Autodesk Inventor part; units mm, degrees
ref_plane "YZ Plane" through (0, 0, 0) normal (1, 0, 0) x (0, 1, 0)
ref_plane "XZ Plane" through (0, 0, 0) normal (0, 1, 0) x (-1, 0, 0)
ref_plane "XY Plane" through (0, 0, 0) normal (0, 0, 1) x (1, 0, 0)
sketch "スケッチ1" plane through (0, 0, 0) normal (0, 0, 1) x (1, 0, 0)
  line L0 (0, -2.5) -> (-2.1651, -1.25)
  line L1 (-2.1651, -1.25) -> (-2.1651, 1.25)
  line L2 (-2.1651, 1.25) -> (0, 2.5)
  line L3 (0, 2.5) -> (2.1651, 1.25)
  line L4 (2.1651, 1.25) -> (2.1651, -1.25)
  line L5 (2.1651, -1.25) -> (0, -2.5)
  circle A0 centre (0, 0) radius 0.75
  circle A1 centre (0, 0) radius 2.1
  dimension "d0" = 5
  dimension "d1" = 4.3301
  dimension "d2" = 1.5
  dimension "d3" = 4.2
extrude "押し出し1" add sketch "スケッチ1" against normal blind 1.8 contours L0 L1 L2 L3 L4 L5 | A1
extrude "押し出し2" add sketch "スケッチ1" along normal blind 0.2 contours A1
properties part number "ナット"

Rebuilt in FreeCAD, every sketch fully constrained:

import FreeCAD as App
import Part
import Sketcher
from FreeCAD import Vector
Q = App.Units.Quantity

doc = App.newDocument("Part")
params = doc.addObject("Spreadsheet::Sheet", "Params")
for row, (alias, value) in enumerate([
    ("sketch1_diameter", "1.5 mm"),
    ("sketch1_height", "2.5 mm"),
    ("pad1_length", "1.8 mm"),
    ("sketch2_diameter", "4.2 mm"),
    ("sketch2_diameter2", "1.5 mm"),
    ("pad2_length", "0.2 mm"),
], start=1):
    params.set(f"A{row}", alias)
    params.set(f"B{row}", "=" + value)
    params.setAlias(f"B{row}", alias)

body = doc.addObject("PartDesign::Body", "Body")

# Sketch on XY plane
sketch1 = doc.addObject("Sketcher::SketchObject", "Sketch")
body.addObject(sketch1)
sketch1.AttachmentSupport = (doc.XY_Plane, [""])
sketch1.MapMode = "FlatFace"
sketch1.addGeometry([
    Part.LineSegment(Vector(-2.2, -1.2, 0), Vector(0, -2.5, 0)),  # 0
    Part.LineSegment(Vector(0, -2.5, 0), Vector(2.2, -1.2, 0)),  # 1
    Part.LineSegment(Vector(2.2, -1.2, 0), Vector(2.2, 1.2, 0)),  # 2
    Part.LineSegment(Vector(2.2, 1.2, 0), Vector(0, 2.5, 0)),  # 3
    Part.LineSegment(Vector(0, 2.5, 0), Vector(-2.2, 1.2, 0)),  # 4
    Part.LineSegment(Vector(-2.2, 1.2, 0), Vector(-2.2, -1.2, 0)),  # 5
    Part.Circle(Vector(0, 0, 0), Vector(0, 0, 1), 0.8),  # 6
], False)
sketch1.addConstraint([
    Sketcher.Constraint("Coincident", 0, 2, 1, 1),
    Sketcher.Constraint("Coincident", 1, 2, 2, 1),
    Sketcher.Constraint("Coincident", 2, 2, 3, 1),
    Sketcher.Constraint("Coincident", 3, 2, 4, 1),
    Sketcher.Constraint("Coincident", 4, 2, 5, 1),
    Sketcher.Constraint("Coincident", 5, 2, 0, 1),
    Sketcher.Constraint("Vertical", 2),
    Sketcher.Constraint("Vertical", 5),
    Sketcher.Constraint("Coincident", 6, 3, -1, 1),
    Sketcher.Constraint("Symmetric", 0, 2, 3, 2, -1, 1),
    Sketcher.Constraint("Symmetric", 1, 2, 4, 2, -1, 1),
    Sketcher.Constraint("PointOnObject", 0, 2, -2),
    Sketcher.Constraint("Parallel", 0, 3),
    Sketcher.Constraint("Horizontal", 2, 2, 4, 2),
    Sketcher.Constraint("Diameter", 6, Q("1.5 mm")),
    Sketcher.Constraint("DistanceY", 0, 2, 3, 2, Q("5 mm")),
    Sketcher.Constraint("Angle", 0, Q("-29.9996 deg")),
    Sketcher.Constraint("DistanceY", 2, 1, 2, 2, Q("2.5 mm")),
])
sketch1.setExpression("Constraints[14]", "Params.sketch1_diameter")
sketch1.setExpression("Constraints[17]", "Params.sketch1_height")
pad1 = doc.addObject("PartDesign::Pad", "Pad")
body.addObject(pad1)
pad1.Profile = sketch1
pad1.setExpression("Length", "Params.pad1_length")
pad1.Reversed = True

# Sketch on XY plane
sketch2 = doc.addObject("Sketcher::SketchObject", "Sketch001")
body.addObject(sketch2)
sketch2.AttachmentSupport = (doc.XY_Plane, [""])
sketch2.MapMode = "FlatFace"
sketch2.addGeometry([
    Part.Circle(Vector(0, 0, 0), Vector(0, 0, 1), 2.1),
    Part.Circle(Vector(0, 0, 0), Vector(0, 0, 1), 0.8),
], False)
sketch2.addConstraint([
    Sketcher.Constraint("Coincident", 0, 3, -1, 1),
    Sketcher.Constraint("Coincident", 1, 3, -1, 1),
    Sketcher.Constraint("Diameter", 0, Q("4.2 mm")),
    Sketcher.Constraint("Diameter", 1, Q("1.5 mm")),
])
sketch2.setExpression("Constraints[2]", "Params.sketch2_diameter")
sketch2.setExpression("Constraints[3]", "Params.sketch2_diameter2")
pad2 = doc.addObject("PartDesign::Pad", "Pad001")
body.addObject(pad2)
pad2.Profile = sketch2
pad2.setExpression("Length", "Params.pad2_length")

doc.recompute()
